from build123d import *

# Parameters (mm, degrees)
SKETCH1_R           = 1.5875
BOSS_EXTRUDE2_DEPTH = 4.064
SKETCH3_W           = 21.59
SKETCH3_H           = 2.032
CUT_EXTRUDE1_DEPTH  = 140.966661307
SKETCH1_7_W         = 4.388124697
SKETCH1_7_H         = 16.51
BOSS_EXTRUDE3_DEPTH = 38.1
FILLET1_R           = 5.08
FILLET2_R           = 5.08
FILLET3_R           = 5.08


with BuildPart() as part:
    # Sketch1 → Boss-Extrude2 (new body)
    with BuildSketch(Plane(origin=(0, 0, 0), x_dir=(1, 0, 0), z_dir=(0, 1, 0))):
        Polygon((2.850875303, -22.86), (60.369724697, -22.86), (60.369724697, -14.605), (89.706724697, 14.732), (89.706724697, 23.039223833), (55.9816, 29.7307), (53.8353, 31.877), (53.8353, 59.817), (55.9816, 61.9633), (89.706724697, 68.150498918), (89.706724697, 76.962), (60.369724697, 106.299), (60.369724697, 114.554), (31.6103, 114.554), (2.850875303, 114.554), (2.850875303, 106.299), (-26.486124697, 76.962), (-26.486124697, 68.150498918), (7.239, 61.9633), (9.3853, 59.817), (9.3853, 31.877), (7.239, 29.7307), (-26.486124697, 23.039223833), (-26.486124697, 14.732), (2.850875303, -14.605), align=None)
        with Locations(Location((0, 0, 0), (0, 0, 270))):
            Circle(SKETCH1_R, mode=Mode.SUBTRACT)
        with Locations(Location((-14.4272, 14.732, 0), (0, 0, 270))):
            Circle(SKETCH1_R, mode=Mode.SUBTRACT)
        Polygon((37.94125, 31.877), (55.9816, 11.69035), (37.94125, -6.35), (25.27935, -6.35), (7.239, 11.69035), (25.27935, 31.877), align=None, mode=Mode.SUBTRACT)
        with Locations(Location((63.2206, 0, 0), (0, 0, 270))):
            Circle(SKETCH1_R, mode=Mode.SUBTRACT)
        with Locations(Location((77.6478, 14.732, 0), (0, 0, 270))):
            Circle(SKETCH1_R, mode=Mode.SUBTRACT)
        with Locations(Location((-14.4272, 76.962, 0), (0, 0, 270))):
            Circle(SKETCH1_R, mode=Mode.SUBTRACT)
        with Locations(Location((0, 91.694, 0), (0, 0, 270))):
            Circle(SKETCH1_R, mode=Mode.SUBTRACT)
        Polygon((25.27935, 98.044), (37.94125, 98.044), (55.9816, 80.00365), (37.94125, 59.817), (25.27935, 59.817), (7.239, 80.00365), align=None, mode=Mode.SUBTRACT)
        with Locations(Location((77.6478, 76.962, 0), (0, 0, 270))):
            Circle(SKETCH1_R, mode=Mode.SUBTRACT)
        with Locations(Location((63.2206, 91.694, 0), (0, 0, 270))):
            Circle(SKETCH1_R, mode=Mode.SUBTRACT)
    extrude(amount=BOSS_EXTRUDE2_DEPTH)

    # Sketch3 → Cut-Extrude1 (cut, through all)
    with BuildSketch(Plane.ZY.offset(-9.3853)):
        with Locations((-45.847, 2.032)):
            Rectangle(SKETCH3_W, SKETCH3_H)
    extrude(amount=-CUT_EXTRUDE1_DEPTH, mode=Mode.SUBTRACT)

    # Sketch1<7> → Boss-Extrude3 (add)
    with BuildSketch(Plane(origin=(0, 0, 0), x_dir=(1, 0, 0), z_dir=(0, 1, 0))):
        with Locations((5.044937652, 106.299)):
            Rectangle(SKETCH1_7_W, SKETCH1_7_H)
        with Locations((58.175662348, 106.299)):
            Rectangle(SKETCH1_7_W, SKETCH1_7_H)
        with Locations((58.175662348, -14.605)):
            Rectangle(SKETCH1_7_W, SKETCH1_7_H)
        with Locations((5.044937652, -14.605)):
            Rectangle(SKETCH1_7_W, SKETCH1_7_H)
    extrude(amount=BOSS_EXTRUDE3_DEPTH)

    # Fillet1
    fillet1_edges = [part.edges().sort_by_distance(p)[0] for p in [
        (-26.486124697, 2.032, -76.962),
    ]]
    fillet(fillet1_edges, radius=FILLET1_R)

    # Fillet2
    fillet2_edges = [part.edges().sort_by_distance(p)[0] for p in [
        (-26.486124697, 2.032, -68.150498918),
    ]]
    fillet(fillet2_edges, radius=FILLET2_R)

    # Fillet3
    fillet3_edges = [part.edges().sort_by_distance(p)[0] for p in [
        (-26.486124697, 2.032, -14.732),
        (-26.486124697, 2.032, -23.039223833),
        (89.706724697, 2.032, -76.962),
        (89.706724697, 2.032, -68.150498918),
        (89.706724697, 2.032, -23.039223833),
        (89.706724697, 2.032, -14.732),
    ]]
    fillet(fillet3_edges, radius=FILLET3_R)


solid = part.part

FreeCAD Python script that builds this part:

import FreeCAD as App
import Part
import Sketcher

V = App.Vector
Q = App.Units.Quantity


def edges_at(feature, points):
    """Names of the edges that pass closest to the given points."""
    edges = feature.Shape.Edges
    near = lambda p: min(range(len(edges)), key=lambda i: edges[i].distToShape(Part.Vertex(*p))[0])
    return sorted({f"Edge{near(p) + 1}" for p in points})

doc = App.newDocument("Part")
body = doc.addObject("PartDesign::Body", "Body")

sketch1 = body.newObject("Sketcher::SketchObject", "Sketch")
sketch1.AttachmentSupport = (doc.getObject("XZ_Plane"), [""])
sketch1.MapMode = "FlatFace"
sketch1.addGeometry([
    Part.LineSegment(V(2.9, 22.9, 0), V(60.4, 22.9, 0)),
    Part.LineSegment(V(60.4, 22.9, 0), V(60.4, 14.6, 0)),
    Part.LineSegment(V(60.4, 14.6, 0), V(89.7, -14.7, 0)),
    Part.LineSegment(V(89.7, -14.7, 0), V(89.7, -23, 0)),
    Part.LineSegment(V(89.7, -23, 0), V(56, -29.7, 0)),
    Part.LineSegment(V(56, -29.7, 0), V(53.8, -31.9, 0)),
    Part.LineSegment(V(53.8, -31.9, 0), V(53.8, -59.8, 0)),
    Part.LineSegment(V(53.8, -59.8, 0), V(56, -62, 0)),
    Part.LineSegment(V(56, -62, 0), V(89.7, -68.2, 0)),
    Part.LineSegment(V(89.7, -68.2, 0), V(89.7, -77, 0)),
    Part.LineSegment(V(89.7, -77, 0), V(60.4, -106.3, 0)),
    Part.LineSegment(V(60.4, -106.3, 0), V(60.4, -114.6, 0)),
    Part.LineSegment(V(60.4, -114.6, 0), V(2.9, -114.6, 0)),
    Part.LineSegment(V(2.9, -114.6, 0), V(2.9, -106.3, 0)),
    Part.LineSegment(V(2.9, -106.3, 0), V(-26.5, -77, 0)),
    Part.LineSegment(V(-26.5, -77, 0), V(-26.5, -68.2, 0)),
    Part.LineSegment(V(-26.5, -68.2, 0), V(7.2, -62, 0)),
    Part.LineSegment(V(7.2, -62, 0), V(9.4, -59.8, 0)),
    Part.LineSegment(V(9.4, -59.8, 0), V(9.4, -31.9, 0)),
    Part.LineSegment(V(9.4, -31.9, 0), V(7.2, -29.7, 0)),
    Part.LineSegment(V(7.2, -29.7, 0), V(-26.5, -23, 0)),
    Part.LineSegment(V(-26.5, -23, 0), V(-26.5, -14.7, 0)),
    Part.LineSegment(V(-26.5, -14.7, 0), V(2.9, 14.6, 0)),
    Part.LineSegment(V(2.9, 14.6, 0), V(2.9, 22.9, 0)),
    Part.Circle(V(0, 0, 0), V(0, 0, 1), 1.6),
    Part.Circle(V(-14.4, -14.7, 0), V(0, 0, 1), 1.6),
    Part.LineSegment(V(25.3, -31.9, 0), V(37.9, -31.9, 0)),
    Part.LineSegment(V(37.9, -31.9, 0), V(56, -11.7, 0)),
    Part.LineSegment(V(56, -11.7, 0), V(37.9, 6.3, 0)),
    Part.LineSegment(V(37.9, 6.3, 0), V(25.3, 6.3, 0)),
    Part.LineSegment(V(25.3, 6.3, 0), V(7.2, -11.7, 0)),
    Part.LineSegment(V(7.2, -11.7, 0), V(25.3, -31.9, 0)),
    Part.Circle(V(63.2, 0, 0), V(0, 0, 1), 1.6),
    Part.Circle(V(77.6, -14.7, 0), V(0, 0, 1), 1.6),
    Part.Circle(V(-14.4, -77, 0), V(0, 0, 1), 1.6),
    Part.Circle(V(0, -91.7, 0), V(0, 0, 1), 1.6),
    Part.LineSegment(V(7.2, -80, 0), V(25.3, -98, 0)),
    Part.LineSegment(V(25.3, -98, 0), V(37.9, -98, 0)),
    Part.LineSegment(V(37.9, -98, 0), V(56, -80, 0)),
    Part.LineSegment(V(56, -80, 0), V(37.9, -59.8, 0)),
    Part.LineSegment(V(37.9, -59.8, 0), V(25.3, -59.8, 0)),
    Part.LineSegment(V(25.3, -59.8, 0), V(7.2, -80, 0)),
    Part.Circle(V(77.6, -77, 0), V(0, 0, 1), 1.6),
    Part.Circle(V(63.2, -91.7, 0), V(0, 0, 1), 1.6),
], False)
sketch1.addConstraint([
    Sketcher.Constraint("Coincident", 0, 2, 1, 1),
    Sketcher.Constraint("Coincident", 1, 2, 2, 1),
    Sketcher.Constraint("Coincident", 2, 2, 3, 1),
    Sketcher.Constraint("Coincident", 3, 2, 4, 1),
    Sketcher.Constraint("Coincident", 4, 2, 5, 1),
    Sketcher.Constraint("Coincident", 5, 2, 6, 1),
    Sketcher.Constraint("Coincident", 6, 2, 7, 1),
    Sketcher.Constraint("Coincident", 7, 2, 8, 1),
    Sketcher.Constraint("Coincident", 8, 2, 9, 1),
    Sketcher.Constraint("Coincident", 9, 2, 10, 1),
    Sketcher.Constraint("Coincident", 10, 2, 11, 1),
    Sketcher.Constraint("Coincident", 11, 2, 12, 1),
    Sketcher.Constraint("Coincident", 12, 2, 13, 1),
    Sketcher.Constraint("Coincident", 13, 2, 14, 1),
    Sketcher.Constraint("Coincident", 14, 2, 15, 1),
    Sketcher.Constraint("Coincident", 15, 2, 16, 1),
    Sketcher.Constraint("Coincident", 16, 2, 17, 1),
    Sketcher.Constraint("Coincident", 17, 2, 18, 1),
    Sketcher.Constraint("Coincident", 18, 2, 19, 1),
    Sketcher.Constraint("Coincident", 19, 2, 20, 1),
    Sketcher.Constraint("Coincident", 20, 2, 21, 1),
    Sketcher.Constraint("Coincident", 21, 2, 22, 1),
    Sketcher.Constraint("Coincident", 22, 2, 23, 1),
    Sketcher.Constraint("Coincident", 23, 2, 0, 1),
    Sketcher.Constraint("Coincident", 26, 2, 27, 1),
    Sketcher.Constraint("Coincident", 27, 2, 28, 1),
    Sketcher.Constraint("Coincident", 28, 2, 29, 1),
    Sketcher.Constraint("Coincident", 29, 2, 30, 1),
    Sketcher.Constraint("Coincident", 30, 2, 31, 1),
    Sketcher.Constraint("Coincident", 31, 2, 26, 1),
    Sketcher.Constraint("Coincident", 36, 2, 37, 1),
    Sketcher.Constraint("Coincident", 37, 2, 38, 1),
    Sketcher.Constraint("Coincident", 38, 2, 39, 1),
    Sketcher.Constraint("Coincident", 39, 2, 40, 1),
    Sketcher.Constraint("Coincident", 40, 2, 41, 1),
    Sketcher.Constraint("Coincident", 41, 2, 36, 1),
    Sketcher.Constraint("Horizontal", 0),
    Sketcher.Constraint("Vertical", 1),
    Sketcher.Constraint("Vertical", 3),
    Sketcher.Constraint("Vertical", 6),
    Sketcher.Constraint("Vertical", 9),
    Sketcher.Constraint("Vertical", 11),
    Sketcher.Constraint("Horizontal", 12),
    Sketcher.Constraint("Vertical", 13),
    Sketcher.Constraint("Vertical", 15),
    Sketcher.Constraint("Vertical", 18),
    Sketcher.Constraint("Vertical", 21),
    Sketcher.Constraint("Vertical", 23),
    Sketcher.Constraint("Horizontal", 26),
    Sketcher.Constraint("Horizontal", 29),
    Sketcher.Constraint("Horizontal", 37),
    Sketcher.Constraint("Horizontal", 40),
    Sketcher.Constraint("Coincident", 24, 3, -1, 1),
    Sketcher.Constraint("Equal", 24, 25),
    Sketcher.Constraint("Equal", 25, 32),
    Sketcher.Constraint("Equal", 32, 33),
    Sketcher.Constraint("Equal", 33, 34),
    Sketcher.Constraint("Equal", 34, 35),
    Sketcher.Constraint("Equal", 35, 42),
    Sketcher.Constraint("Equal", 42, 43),
    Sketcher.Constraint("PointOnObject", 32, 3, -1),
    Sketcher.Constraint("PointOnObject", 35, 3, -2),
    Sketcher.Constraint("Perpendicular", 2, 5),
    Sketcher.Constraint("Perpendicular", 5, 7),
    Sketcher.Constraint("Perpendicular", 7, 10),
    Sketcher.Constraint("Perpendicular", 10, 14),
    Sketcher.Constraint("Perpendicular", 14, 17),
    Sketcher.Constraint("Perpendicular", 17, 19),
    Sketcher.Constraint("Perpendicular", 19, 22),
    Sketcher.Constraint("Perpendicular", 22, 28),
    Sketcher.Constraint("Perpendicular", 28, 30),
    Sketcher.Constraint("Perpendicular", 30, 36),
    Sketcher.Constraint("Perpendicular", 36, 38),
    Sketcher.Constraint("Parallel", 31, 39),
    Sketcher.Constraint("Parallel", 27, 41),
    Sketcher.Constraint("Horizontal", 25, 3, 33, 3),
    Sketcher.Constraint("Horizontal", 34, 3, 42, 3),
    Sketcher.Constraint("Horizontal", 35, 3, 43, 3),
    Sketcher.Constraint("Horizontal", 33, 3, 2, 2),
    Sketcher.Constraint("Horizontal", 42, 3, 9, 2),
    Sketcher.Constraint("Horizontal", 10, 2, 13, 2),
    Sketcher.Constraint("Horizontal", 9, 2, 14, 2),
    Sketcher.Constraint("Horizontal", 8, 2, 15, 2),
    Sketcher.Constraint("Horizontal", 7, 2, 16, 2),
    Sketcher.Constraint("Horizontal", 6, 2, 17, 2),
    Sketcher.Constraint("Horizontal", 5, 2, 18, 2),
    Sketcher.Constraint("Horizontal", 4, 2, 19, 2),
    Sketcher.Constraint("Horizontal", 3, 2, 20, 2),
    Sketcher.Constraint("Horizontal", 2, 2, 21, 2),
    Sketcher.Constraint("Horizontal", 1, 2, 22, 2),
    Sketcher.Constraint("Horizontal", 18, 2, 26, 2),
    Sketcher.Constraint("Horizontal", 27, 2, 30, 2),
    Sketcher.Constraint("Horizontal", 17, 2, 39, 2),
    Sketcher.Constraint("Horizontal", 38, 2, 41, 2),
    Sketcher.Constraint("Vertical", 25, 3, 34, 3),
    Sketcher.Constraint("Vertical", 33, 3, 42, 3),
    Sketcher.Constraint("Vertical", 32, 3, 43, 3),
    Sketcher.Constraint("Vertical", 4, 2, 7, 2),
    Sketcher.Constraint("Vertical", 3, 2, 8, 2),
    Sketcher.Constraint("Vertical", 1, 2, 10, 2),
    Sketcher.Constraint("Vertical", 16, 2, 19, 2),
    Sketcher.Constraint("Vertical", 15, 2, 20, 2),
    Sketcher.Constraint("Vertical", 7, 2, 27, 2),
    Sketcher.Constraint("Vertical", 26, 2, 28, 2),
    Sketcher.Constraint("Vertical", 19, 2, 30, 2),
    Sketcher.Constraint("Vertical", 29, 2, 31, 2),
    Sketcher.Constraint("Vertical", 31, 2, 36, 2),
    Sketcher.Constraint("Vertical", 28, 2, 37, 2),
    Sketcher.Constraint("Vertical", 27, 2, 38, 2),
    Sketcher.Constraint("Vertical", 37, 2, 39, 2),
    Sketcher.Constraint("Equal", 1, 11),
    Sketcher.Constraint("Equal", 8, 16),
    Sketcher.Constraint("Diameter", 24, Q("0.125 in")),
    Sketcher.Constraint("DistanceY", 6, 2, 6, 1, Q("1.1 in")),
    Sketcher.Constraint("DistanceY", -1, 1, 0, 2, Q("0.9 in")),
    Sketcher.Constraint("DistanceY", 11, 2, 43, 3, Q("0.9 in")),
    Sketcher.Constraint("DistanceY", 1, 2, 1, 1, Q("0.325 in")),
    Sketcher.Constraint("DistanceY", 25, 3, -1, 1, Q("0.58 in")),
    Sketcher.Constraint("DistanceY", 34, 3, -1, 1, Q("3.03 in")),
    Sketcher.Constraint("DistanceY", -1, 1, 28, 2, Q("0.25 in")),
    Sketcher.Constraint("DistanceY", 36, 2, -1, 1, Q("3.86 in")),
    Sketcher.Constraint("DistanceX", 18, 2, 5, 2, Q("1.75 in")),
    Sketcher.Constraint("DistanceX", 26, 1, 26, 2, Q("0.4985 in")),
    Sketcher.Constraint("DistanceX", 25, 3, -1, 1, Q("0.568 in")),
    Sketcher.Constraint("DistanceX", -1, 1, 32, 3, Q("2.489 in")),
    Sketcher.Constraint("DistanceX", -1, 1, 33, 3, Q("3.057 in")),
    Sketcher.Constraint("DistanceX", -1, 1, 4, 2, Q("2.204 in")),
    Sketcher.Constraint("DistanceX", -1, 1, 16, 2, Q("0.285 in")),
    Sketcher.Constraint("DistanceY", 9, 2, 9, 1, 8.811501),
    Sketcher.Constraint("DistanceX", 0, 1, 0, 2, 57.518849),
    Sketcher.Constraint("DistanceY", 3, 2, 3, 1, 8.307224),
])
pad1 = body.newObject("PartDesign::Pad", "Pad")
pad1.Profile = sketch1
pad1.Length = Q("0.16 in")
pad1.Reversed = True

sketch2 = body.newObject("Sketcher::SketchObject", "Sketch001")
sketch2.AttachmentSupport = (doc.getObject("YZ_Plane"), [""])
sketch2.MapMode = "FlatFace"
sketch2.AttachmentOffset = App.Placement(V(0, 0, 0.3695 * 25.4), App.Rotation())
sketch2.addGeometry([
    Part.LineSegment(V(3, -56.6, 0), V(1, -56.6, 0)),
    Part.LineSegment(V(1, -56.6, 0), V(1, -35.1, 0)),
    Part.LineSegment(V(1, -35.1, 0), V(3, -35.1, 0)),
    Part.LineSegment(V(3, -35.1, 0), V(3, -56.6, 0)),
], False)
sketch2.addConstraint([
    Sketcher.Constraint("Coincident", 0, 2, 1, 1),
    Sketcher.Constraint("Coincident", 1, 2, 2, 1),
    Sketcher.Constraint("Coincident", 2, 2, 3, 1),
    Sketcher.Constraint("Coincident", 3, 2, 0, 1),
    Sketcher.Constraint("Horizontal", 0),
    Sketcher.Constraint("Vertical", 1),
    Sketcher.Constraint("Horizontal", 2),
    Sketcher.Constraint("Vertical", 3),
    Sketcher.Constraint("DistanceX", 0, 2, 0, 1, Q("0.08 in")),
    Sketcher.Constraint("DistanceY", 1, 1, 1, 2, Q("0.85 in")),
    Sketcher.Constraint("DistanceX", -1, 1, 0, 2, Q("0.04 in")),
    Sketcher.Constraint("DistanceY", 0, 2, -1, 1, Q("2.23 in")),
])
pocket1 = body.newObject("PartDesign::Pocket", "Pocket")
pocket1.Profile = sketch2
pocket1.Type = "ThroughAll"
pocket1.Reversed = True

sketch3 = body.newObject("Sketcher::SketchObject", "Sketch002")
sketch3.AttachmentSupport = (doc.getObject("XZ_Plane"), [""])
sketch3.MapMode = "FlatFace"
sketch3.addGeometry([
    Part.LineSegment(V(2.9, -114.6, 0), V(2.9, -98, 0)),
    Part.LineSegment(V(2.9, -98, 0), V(7.2, -98, 0)),
    Part.LineSegment(V(7.2, -98, 0), V(7.2, -114.6, 0)),
    Part.LineSegment(V(7.2, -114.6, 0), V(2.9, -114.6, 0)),
    Part.LineSegment(V(56, -114.6, 0), V(56, -98, 0)),
    Part.LineSegment(V(56, -98, 0), V(60.4, -98, 0)),
    Part.LineSegment(V(60.4, -98, 0), V(60.4, -114.6, 0)),
    Part.LineSegment(V(60.4, -114.6, 0), V(56, -114.6, 0)),
    Part.LineSegment(V(56, 6.3, 0), V(56, 22.9, 0)),
    Part.LineSegment(V(56, 22.9, 0), V(60.4, 22.9, 0)),
    Part.LineSegment(V(60.4, 22.9, 0), V(60.4, 6.3, 0)),
    Part.LineSegment(V(60.4, 6.3, 0), V(56, 6.3, 0)),
    Part.LineSegment(V(2.9, 6.3, 0), V(2.9, 22.9, 0)),
    Part.LineSegment(V(2.9, 22.9, 0), V(7.2, 22.9, 0)),
    Part.LineSegment(V(7.2, 22.9, 0), V(7.2, 6.3, 0)),
    Part.LineSegment(V(7.2, 6.3, 0), V(2.9, 6.3, 0)),
], False)
sketch3.addConstraint([
    Sketcher.Constraint("Coincident", 0, 2, 1, 1),
    Sketcher.Constraint("Coincident", 1, 2, 2, 1),
    Sketcher.Constraint("Coincident", 2, 2, 3, 1),
    Sketcher.Constraint("Coincident", 3, 2, 0, 1),
    Sketcher.Constraint("Coincident", 4, 2, 5, 1),
    Sketcher.Constraint("Coincident", 5, 2, 6, 1),
    Sketcher.Constraint("Coincident", 6, 2, 7, 1),
    Sketcher.Constraint("Coincident", 7, 2, 4, 1),
    Sketcher.Constraint("Coincident", 8, 2, 9, 1),
    Sketcher.Constraint("Coincident", 9, 2, 10, 1),
    Sketcher.Constraint("Coincident", 10, 2, 11, 1),
    Sketcher.Constraint("Coincident", 11, 2, 8, 1),
    Sketcher.Constraint("Coincident", 12, 2, 13, 1),
    Sketcher.Constraint("Coincident", 13, 2, 14, 1),
    Sketcher.Constraint("Coincident", 14, 2, 15, 1),
    Sketcher.Constraint("Coincident", 15, 2, 12, 1),
    Sketcher.Constraint("Vertical", 0),
    Sketcher.Constraint("Horizontal", 1),
    Sketcher.Constraint("Vertical", 2),
    Sketcher.Constraint("Horizontal", 3),
    Sketcher.Constraint("Vertical", 4),
    Sketcher.Constraint("Horizontal", 5),
    Sketcher.Constraint("Vertical", 6),
    Sketcher.Constraint("Horizontal", 7),
    Sketcher.Constraint("Vertical", 8),
    Sketcher.Constraint("Horizontal", 9),
    Sketcher.Constraint("Vertical", 10),
    Sketcher.Constraint("Horizontal", 11),
    Sketcher.Constraint("Vertical", 12),
    Sketcher.Constraint("Horizontal", 13),
    Sketcher.Constraint("Vertical", 14),
    Sketcher.Constraint("Horizontal", 15),
    Sketcher.Constraint("Horizontal", 1, 2, 4, 2),
    Sketcher.Constraint("Horizontal", 3, 2, 6, 2),
    Sketcher.Constraint("Horizontal", 9, 2, 12, 2),
    Sketcher.Constraint("Horizontal", 11, 2, 14, 2),
    Sketcher.Constraint("Vertical", 7, 2, 8, 2),
    Sketcher.Constraint("Vertical", 6, 2, 9, 2),
    Sketcher.Constraint("Vertical", 3, 2, 12, 2),
    Sketcher.Constraint("Vertical", 2, 2, 13, 2),
    Sketcher.Constraint("Equal", 3, 5),
    Sketcher.Constraint("Equal", 6, 8),
    Sketcher.Constraint("DistanceY", 0, 1, 0, 2, Q("0.65 in")),
    Sketcher.Constraint("DistanceY", -1, 1, 8, 2, Q("0.9 in")),
    Sketcher.Constraint("DistanceY", 0, 2, -1, 1, Q("3.86 in")),
    Sketcher.Constraint("DistanceX", -1, 1, 1, 2, Q("0.285 in")),
    Sketcher.Constraint("DistanceX", -1, 1, 4, 2, Q("2.204 in")),
    Sketcher.Constraint("DistanceX", 1, 1, 1, 2, 4.388125),
])
pad2 = body.newObject("PartDesign::Pad", "Pad001")
pad2.Profile = sketch3
pad2.Length = Q("1.5 in")
pad2.Reversed = True
doc.recompute()

fillet = body.newObject("PartDesign::Fillet", "Fillet")
fillet.Base = (pad2, edges_at(pad2, [(-26.486, 2.032, -76.962)]))
fillet.Radius = Q("0.2 in")
doc.recompute()

fillet2 = body.newObject("PartDesign::Fillet", "Fillet001")
fillet2.Base = (fillet, edges_at(fillet, [(-26.486, 2.032, -68.15)]))
fillet2.Radius = Q("0.2 in")
doc.recompute()

fillet3 = body.newObject("PartDesign::Fillet", "Fillet002")
fillet3.Base = (fillet2, edges_at(fillet2, [
    (-26.486, 2.032, -14.732),
    (-26.486, 2.032, -23.039),
    (89.707, 2.032, -76.962),
    (89.707, 2.032, -68.15),
    (89.707, 2.032, -23.039),
    (89.707, 2.032, -14.732),
]))
fillet3.Radius = Q("0.2 in")

doc.recompute()
